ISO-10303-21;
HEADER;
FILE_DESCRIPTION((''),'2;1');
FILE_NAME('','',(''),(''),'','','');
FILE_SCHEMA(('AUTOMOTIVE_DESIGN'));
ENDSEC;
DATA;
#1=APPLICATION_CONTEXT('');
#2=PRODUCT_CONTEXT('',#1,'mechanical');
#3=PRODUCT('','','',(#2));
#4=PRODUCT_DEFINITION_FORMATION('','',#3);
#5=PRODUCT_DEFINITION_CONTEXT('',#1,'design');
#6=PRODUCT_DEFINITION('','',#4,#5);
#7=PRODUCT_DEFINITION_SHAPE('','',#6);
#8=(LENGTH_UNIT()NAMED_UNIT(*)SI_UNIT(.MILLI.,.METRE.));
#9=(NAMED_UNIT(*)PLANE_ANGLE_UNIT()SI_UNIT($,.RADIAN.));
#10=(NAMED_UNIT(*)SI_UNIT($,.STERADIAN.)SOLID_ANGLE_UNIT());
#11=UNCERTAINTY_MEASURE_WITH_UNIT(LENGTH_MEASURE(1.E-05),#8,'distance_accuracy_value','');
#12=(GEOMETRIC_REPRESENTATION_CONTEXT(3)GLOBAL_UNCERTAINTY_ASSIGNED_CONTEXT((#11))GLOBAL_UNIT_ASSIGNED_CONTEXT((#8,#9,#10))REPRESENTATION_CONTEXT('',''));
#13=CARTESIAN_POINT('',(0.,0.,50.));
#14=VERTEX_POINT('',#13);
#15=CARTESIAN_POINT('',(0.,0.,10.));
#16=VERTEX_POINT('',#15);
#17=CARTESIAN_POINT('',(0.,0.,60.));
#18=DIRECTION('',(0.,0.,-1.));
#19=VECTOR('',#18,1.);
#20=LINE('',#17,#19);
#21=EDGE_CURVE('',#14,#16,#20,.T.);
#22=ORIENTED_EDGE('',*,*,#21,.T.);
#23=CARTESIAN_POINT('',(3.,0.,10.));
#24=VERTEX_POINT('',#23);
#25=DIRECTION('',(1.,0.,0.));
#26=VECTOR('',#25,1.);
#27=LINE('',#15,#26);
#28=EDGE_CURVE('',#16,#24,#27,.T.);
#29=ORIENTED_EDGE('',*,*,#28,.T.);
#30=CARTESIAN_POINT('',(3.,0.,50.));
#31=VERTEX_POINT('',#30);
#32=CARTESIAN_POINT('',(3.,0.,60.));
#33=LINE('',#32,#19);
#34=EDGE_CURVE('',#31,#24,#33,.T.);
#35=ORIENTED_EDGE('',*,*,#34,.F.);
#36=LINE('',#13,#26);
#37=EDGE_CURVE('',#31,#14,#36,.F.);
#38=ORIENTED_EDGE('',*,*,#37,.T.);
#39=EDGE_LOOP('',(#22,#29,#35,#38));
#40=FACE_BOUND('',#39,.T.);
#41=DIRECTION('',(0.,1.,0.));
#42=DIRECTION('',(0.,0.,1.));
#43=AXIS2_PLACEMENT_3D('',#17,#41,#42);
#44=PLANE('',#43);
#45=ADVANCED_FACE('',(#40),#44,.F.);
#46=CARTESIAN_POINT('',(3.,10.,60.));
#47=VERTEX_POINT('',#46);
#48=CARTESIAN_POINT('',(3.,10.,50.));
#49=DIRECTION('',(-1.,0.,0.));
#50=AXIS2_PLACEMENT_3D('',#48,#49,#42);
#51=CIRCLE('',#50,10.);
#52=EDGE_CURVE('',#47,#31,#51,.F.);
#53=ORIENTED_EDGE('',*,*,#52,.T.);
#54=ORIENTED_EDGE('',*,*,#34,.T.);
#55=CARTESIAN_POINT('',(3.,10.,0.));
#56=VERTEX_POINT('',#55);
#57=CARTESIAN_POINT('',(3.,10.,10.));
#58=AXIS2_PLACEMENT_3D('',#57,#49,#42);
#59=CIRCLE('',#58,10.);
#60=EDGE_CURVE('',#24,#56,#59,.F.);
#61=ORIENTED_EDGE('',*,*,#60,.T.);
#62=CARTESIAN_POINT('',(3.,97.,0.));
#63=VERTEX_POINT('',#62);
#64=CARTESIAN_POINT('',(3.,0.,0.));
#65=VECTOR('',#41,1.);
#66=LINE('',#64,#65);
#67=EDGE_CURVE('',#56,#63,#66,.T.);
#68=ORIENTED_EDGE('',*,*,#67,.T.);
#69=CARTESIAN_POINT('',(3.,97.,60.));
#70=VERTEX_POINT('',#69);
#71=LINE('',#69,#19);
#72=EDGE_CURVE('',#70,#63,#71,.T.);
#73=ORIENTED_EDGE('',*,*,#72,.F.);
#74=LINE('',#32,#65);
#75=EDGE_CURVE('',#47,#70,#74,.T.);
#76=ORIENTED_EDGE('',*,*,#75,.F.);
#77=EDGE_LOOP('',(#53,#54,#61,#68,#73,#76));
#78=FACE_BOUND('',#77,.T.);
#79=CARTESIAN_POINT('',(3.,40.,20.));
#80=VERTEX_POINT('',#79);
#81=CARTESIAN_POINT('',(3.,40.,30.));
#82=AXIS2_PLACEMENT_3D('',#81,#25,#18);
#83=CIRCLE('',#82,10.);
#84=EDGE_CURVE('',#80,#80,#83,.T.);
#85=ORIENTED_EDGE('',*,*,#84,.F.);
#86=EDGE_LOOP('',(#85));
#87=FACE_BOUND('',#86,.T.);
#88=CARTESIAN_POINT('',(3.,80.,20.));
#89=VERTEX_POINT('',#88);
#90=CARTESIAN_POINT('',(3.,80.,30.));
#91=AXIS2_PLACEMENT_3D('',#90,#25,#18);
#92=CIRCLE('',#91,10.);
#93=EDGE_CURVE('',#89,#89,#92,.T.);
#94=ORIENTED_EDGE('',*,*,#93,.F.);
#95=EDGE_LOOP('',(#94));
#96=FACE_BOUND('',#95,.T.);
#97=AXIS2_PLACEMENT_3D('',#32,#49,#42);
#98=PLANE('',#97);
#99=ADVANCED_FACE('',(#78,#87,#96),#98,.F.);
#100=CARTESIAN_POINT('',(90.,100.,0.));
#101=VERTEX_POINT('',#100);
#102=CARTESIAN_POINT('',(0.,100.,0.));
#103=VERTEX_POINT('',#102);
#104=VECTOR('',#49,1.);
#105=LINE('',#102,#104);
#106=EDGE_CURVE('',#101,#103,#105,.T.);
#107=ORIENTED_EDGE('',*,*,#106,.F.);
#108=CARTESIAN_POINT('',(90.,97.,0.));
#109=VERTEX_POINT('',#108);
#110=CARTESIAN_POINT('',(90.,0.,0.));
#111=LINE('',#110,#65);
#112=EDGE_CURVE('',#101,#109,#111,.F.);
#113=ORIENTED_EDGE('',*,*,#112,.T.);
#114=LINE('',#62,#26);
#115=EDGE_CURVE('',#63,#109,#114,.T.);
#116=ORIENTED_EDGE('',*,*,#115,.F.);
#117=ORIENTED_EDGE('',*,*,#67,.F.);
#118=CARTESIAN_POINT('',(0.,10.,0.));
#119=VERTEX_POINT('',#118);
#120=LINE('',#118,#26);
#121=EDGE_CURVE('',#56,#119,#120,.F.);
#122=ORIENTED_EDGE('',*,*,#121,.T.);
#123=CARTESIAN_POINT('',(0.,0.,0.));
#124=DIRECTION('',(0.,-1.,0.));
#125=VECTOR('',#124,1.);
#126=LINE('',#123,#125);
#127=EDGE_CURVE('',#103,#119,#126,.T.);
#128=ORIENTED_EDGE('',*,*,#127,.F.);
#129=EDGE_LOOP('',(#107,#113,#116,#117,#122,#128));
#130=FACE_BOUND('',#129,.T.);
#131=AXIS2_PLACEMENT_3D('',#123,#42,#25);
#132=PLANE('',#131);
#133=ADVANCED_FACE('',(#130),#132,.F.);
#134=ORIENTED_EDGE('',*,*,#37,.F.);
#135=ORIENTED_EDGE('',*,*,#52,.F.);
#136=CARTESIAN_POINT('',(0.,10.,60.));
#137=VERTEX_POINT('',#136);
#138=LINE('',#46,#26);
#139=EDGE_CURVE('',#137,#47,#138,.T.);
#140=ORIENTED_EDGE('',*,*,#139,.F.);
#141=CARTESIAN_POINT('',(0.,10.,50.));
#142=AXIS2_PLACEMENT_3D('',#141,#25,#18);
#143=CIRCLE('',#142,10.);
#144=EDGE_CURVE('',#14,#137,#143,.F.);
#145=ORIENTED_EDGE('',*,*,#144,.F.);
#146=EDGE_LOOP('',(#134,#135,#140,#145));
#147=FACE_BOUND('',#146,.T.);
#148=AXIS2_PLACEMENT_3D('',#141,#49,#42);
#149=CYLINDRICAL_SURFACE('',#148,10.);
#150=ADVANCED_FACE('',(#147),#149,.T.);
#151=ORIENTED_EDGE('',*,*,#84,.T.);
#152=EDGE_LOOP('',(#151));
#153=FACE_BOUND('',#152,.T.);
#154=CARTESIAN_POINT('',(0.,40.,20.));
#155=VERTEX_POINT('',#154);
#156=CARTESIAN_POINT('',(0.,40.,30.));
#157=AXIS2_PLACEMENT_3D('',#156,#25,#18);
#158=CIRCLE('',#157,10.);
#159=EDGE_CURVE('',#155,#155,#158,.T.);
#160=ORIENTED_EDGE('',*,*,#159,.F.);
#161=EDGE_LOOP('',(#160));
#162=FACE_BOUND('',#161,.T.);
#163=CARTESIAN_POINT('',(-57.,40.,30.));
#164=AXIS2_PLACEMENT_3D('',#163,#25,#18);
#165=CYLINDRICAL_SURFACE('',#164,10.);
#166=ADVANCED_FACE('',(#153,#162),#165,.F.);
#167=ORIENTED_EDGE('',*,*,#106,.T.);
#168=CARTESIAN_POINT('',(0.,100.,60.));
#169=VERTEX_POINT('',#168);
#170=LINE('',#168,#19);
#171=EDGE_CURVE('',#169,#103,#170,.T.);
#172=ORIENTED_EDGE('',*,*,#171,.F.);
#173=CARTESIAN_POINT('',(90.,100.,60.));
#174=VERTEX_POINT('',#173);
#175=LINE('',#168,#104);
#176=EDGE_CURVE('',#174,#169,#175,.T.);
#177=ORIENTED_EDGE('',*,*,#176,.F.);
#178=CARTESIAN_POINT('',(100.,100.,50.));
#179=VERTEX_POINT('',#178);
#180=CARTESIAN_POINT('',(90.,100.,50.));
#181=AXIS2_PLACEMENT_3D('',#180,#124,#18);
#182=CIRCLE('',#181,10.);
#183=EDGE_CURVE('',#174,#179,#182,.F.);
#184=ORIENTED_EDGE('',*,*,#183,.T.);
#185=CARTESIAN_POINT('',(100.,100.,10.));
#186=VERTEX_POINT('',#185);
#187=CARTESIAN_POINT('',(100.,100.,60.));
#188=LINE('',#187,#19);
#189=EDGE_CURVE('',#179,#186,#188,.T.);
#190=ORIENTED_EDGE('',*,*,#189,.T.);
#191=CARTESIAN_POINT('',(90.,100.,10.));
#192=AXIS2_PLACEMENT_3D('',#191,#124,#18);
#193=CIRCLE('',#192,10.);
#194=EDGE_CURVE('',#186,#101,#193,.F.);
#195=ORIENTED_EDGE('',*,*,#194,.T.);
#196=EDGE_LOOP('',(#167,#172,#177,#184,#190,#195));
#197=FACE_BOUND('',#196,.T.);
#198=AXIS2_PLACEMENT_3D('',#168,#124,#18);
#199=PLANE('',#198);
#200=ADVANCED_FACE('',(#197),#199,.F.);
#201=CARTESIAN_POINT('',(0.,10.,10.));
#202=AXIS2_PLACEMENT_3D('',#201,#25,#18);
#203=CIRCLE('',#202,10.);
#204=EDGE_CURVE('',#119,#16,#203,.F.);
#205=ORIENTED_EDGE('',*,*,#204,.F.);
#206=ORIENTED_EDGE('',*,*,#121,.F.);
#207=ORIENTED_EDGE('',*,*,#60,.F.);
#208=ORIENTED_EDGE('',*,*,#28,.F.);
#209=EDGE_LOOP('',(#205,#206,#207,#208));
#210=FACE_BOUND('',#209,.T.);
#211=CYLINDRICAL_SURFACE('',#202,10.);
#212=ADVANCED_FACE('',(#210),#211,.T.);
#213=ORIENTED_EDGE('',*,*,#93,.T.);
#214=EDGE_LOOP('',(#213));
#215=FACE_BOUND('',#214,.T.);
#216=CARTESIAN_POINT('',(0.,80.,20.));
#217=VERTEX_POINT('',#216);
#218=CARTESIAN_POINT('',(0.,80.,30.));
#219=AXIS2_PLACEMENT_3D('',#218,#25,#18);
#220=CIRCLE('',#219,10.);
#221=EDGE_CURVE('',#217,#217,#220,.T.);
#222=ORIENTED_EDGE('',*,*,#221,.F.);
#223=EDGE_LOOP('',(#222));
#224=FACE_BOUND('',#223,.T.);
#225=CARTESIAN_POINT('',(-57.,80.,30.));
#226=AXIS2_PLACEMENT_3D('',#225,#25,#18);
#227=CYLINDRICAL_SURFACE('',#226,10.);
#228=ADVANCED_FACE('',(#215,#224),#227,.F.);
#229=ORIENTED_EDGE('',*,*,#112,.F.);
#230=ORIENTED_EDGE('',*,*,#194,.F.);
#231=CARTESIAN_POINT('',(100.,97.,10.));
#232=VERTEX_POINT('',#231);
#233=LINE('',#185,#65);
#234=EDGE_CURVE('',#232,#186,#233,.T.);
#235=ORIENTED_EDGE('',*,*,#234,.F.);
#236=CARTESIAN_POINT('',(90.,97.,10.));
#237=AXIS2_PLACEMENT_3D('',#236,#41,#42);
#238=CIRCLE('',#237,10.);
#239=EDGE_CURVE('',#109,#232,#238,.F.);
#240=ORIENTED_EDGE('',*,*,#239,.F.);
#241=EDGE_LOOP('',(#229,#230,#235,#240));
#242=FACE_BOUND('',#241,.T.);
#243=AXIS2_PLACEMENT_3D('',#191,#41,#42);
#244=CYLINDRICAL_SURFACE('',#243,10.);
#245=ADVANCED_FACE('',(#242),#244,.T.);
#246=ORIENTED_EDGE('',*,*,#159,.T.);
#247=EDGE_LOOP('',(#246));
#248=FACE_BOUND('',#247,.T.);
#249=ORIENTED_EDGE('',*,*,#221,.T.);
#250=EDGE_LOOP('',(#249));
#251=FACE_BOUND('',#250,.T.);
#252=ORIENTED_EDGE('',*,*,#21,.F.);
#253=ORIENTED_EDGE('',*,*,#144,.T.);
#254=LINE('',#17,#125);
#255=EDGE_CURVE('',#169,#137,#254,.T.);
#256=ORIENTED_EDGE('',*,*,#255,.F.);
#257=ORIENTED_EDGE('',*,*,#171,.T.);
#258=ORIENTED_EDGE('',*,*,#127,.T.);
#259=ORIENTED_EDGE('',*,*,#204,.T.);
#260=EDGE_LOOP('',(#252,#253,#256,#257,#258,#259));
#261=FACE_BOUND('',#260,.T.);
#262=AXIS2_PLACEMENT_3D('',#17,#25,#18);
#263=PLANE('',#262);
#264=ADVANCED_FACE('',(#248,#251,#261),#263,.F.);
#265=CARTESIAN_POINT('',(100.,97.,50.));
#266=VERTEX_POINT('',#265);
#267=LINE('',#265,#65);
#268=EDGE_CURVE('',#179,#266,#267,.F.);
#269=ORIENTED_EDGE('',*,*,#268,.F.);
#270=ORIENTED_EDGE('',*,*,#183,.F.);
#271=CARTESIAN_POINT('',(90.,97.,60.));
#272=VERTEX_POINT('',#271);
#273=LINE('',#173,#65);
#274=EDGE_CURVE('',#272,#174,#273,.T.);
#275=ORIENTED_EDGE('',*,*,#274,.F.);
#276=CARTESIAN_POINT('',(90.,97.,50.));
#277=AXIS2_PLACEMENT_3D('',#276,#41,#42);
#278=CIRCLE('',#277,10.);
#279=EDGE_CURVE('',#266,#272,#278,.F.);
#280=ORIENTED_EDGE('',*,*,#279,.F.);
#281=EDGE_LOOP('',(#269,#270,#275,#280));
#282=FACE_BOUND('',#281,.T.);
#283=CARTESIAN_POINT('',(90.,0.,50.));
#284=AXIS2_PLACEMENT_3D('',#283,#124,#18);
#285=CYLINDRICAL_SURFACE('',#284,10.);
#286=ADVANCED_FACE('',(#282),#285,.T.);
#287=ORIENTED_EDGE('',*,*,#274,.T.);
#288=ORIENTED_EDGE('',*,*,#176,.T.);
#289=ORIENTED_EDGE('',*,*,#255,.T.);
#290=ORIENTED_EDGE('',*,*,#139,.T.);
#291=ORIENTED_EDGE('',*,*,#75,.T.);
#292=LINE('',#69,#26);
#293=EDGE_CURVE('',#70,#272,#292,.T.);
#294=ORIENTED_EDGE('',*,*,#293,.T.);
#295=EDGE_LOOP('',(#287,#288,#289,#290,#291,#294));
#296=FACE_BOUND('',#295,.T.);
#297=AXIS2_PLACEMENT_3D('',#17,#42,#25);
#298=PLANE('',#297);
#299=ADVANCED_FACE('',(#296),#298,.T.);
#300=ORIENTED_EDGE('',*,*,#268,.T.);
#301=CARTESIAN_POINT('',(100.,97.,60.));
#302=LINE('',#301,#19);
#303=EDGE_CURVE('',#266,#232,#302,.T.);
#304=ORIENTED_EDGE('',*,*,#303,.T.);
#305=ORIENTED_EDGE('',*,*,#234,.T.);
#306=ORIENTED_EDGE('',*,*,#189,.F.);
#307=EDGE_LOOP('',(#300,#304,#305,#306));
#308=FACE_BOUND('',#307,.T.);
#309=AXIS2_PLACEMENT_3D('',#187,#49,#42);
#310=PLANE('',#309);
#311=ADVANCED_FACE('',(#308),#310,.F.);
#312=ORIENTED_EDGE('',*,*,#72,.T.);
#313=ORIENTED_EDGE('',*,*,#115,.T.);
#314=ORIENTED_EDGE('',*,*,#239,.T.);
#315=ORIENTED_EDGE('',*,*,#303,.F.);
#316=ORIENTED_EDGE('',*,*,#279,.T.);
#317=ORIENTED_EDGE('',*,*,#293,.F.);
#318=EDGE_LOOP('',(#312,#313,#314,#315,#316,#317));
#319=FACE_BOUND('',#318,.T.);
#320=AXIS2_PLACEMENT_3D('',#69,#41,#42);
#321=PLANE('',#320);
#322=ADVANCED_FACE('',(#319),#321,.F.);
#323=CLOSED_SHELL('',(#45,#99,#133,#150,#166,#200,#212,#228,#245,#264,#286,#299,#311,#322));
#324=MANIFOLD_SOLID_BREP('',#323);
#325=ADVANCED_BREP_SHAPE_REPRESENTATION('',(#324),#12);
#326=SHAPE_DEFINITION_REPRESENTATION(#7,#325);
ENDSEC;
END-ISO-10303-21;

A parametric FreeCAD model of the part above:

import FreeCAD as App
import Part
import Sketcher
from FreeCAD import Vector


def edges_at(feature, points):
    """Names of the edges that pass closest to the given points."""
    edges = feature.Shape.Edges
    near = lambda p: min(range(len(edges)), key=lambda i: edges[i].distToShape(Part.Vertex(*p))[0])
    return sorted({f"Edge{near(p) + 1}" for p in points})

doc = App.newDocument("Part")
params = doc.addObject("Spreadsheet::Sheet", "Params")
for row, (alias, value) in enumerate([
    ("sketch1_width", "3 mm"),
    ("sketch1_width2", "97 mm"),
    ("pad1_length", "60 mm"),
    ("fillet_radius", "10 mm"),
    ("fillet2_radius", "10 mm"),
    ("sketch2_diameter", "20 mm"),
    ("pocket1_length", "60 mm"),
], start=1):
    params.set(f"A{row}", alias)
    params.set(f"B{row}", "=" + value)
    params.setAlias(f"B{row}", alias)

body = doc.addObject("PartDesign::Body", "Body")

# Sketch on XY plane
sketch1 = body.newObject("Sketcher::SketchObject", "Sketch")
sketch1.AttachmentSupport = (doc.getObject("XY_Plane"), [""])
sketch1.MapMode = "FlatFace"
sketch1.addGeometry(Part.LineSegment(Vector(0, 100, 0), Vector(0, 0, 0)), False)
sketch1.addGeometry(Part.LineSegment(Vector(0, 0, 0), Vector(3, 0, 0)), False)
sketch1.addGeometry(Part.LineSegment(Vector(3, 0, 0), Vector(3, 97, 0)), False)
sketch1.addGeometry(Part.LineSegment(Vector(3, 97, 0), Vector(100, 97, 0)), False)
sketch1.addGeometry(Part.LineSegment(Vector(100, 97, 0), Vector(100, 100, 0)), False)
sketch1.addGeometry(Part.LineSegment(Vector(100, 100, 0), Vector(0, 100, 0)), False)
sketch1.addConstraint(Sketcher.Constraint("Coincident", 0, 2, 1, 1))
sketch1.addConstraint(Sketcher.Constraint("Coincident", 1, 2, 2, 1))
sketch1.addConstraint(Sketcher.Constraint("Coincident", 2, 2, 3, 1))
sketch1.addConstraint(Sketcher.Constraint("Coincident", 3, 2, 4, 1))
sketch1.addConstraint(Sketcher.Constraint("Coincident", 4, 2, 5, 1))
sketch1.addConstraint(Sketcher.Constraint("Coincident", 5, 2, 0, 1))
sketch1.addConstraint(Sketcher.Constraint("Vertical", 0))
sketch1.addConstraint(Sketcher.Constraint("Horizontal", 1))
sketch1.addConstraint(Sketcher.Constraint("Vertical", 2))
sketch1.addConstraint(Sketcher.Constraint("Horizontal", 3))
sketch1.addConstraint(Sketcher.Constraint("Vertical", 4))
sketch1.addConstraint(Sketcher.Constraint("Horizontal", 5))
sketch1.addConstraint(Sketcher.Constraint("Coincident", 0, 2, -1, 1))
sketch1.addConstraint(Sketcher.Constraint("Equal", 5, 0))
sketch1.addConstraint(Sketcher.Constraint("Equal", 3, 2))
sketch1.addConstraint(Sketcher.Constraint("DistanceX", 1, 1, 1, 2, 3.0))
sketch1.addConstraint(Sketcher.Constraint("DistanceX", 3, 1, 3, 2, 97.0))
sketch1.setExpression("Constraints[15]", "Params.sketch1_width")
sketch1.setExpression("Constraints[16]", "Params.sketch1_width2")
pad1 = body.newObject("PartDesign::Pad", "Pad")
pad1.Profile = sketch1
pad1.setExpression("Length", "Params.pad1_length")
doc.recompute()

fillet = body.newObject("PartDesign::Fillet", "Fillet")
fillet.Base = (pad1, edges_at(pad1, [(100, 98.5, 60), (100, 98.5, 0)]))
fillet.setExpression("Radius", "Params.fillet_radius")
doc.recompute()

fillet2 = body.newObject("PartDesign::Fillet", "Fillet001")
fillet2.Base = (fillet, edges_at(fillet, [(1.5, 0, 60), (1.5, 0, 0)]))
fillet2.setExpression("Radius", "Params.fillet2_radius")

# Sketch on YZ plane
sketch2 = body.newObject("Sketcher::SketchObject", "Sketch001")
sketch2.AttachmentSupport = (doc.getObject("YZ_Plane"), [""])
sketch2.MapMode = "FlatFace"
sketch2.AttachmentOffset = App.Placement(Vector(0, 0, 3), App.Rotation())
sketch2.addGeometry(Part.Circle(Vector(40, 30, 0), Vector(0, 0, 1), 10), False)
sketch2.addGeometry(Part.Circle(Vector(80, 30, 0), Vector(0, 0, 1), 10), False)
sketch2.addConstraint(Sketcher.Constraint("Equal", 0, 1))
sketch2.addConstraint(Sketcher.Constraint("Horizontal", 0, 3, 1, 3))
sketch2.addConstraint(Sketcher.Constraint("Diameter", 0, 20.0))
sketch2.addConstraint(Sketcher.Constraint("DistanceX", -1, 1, 0, 3, 40.0))
sketch2.addConstraint(Sketcher.Constraint("DistanceY", -1, 1, 0, 3, 30.0))
sketch2.addConstraint(Sketcher.Constraint("DistanceX", -1, 1, 1, 3, 80.0))
sketch2.setExpression("Constraints[2]", "Params.sketch2_diameter")
pocket1 = body.newObject("PartDesign::Pocket", "Pocket")
pocket1.Profile = sketch2
pocket1.setExpression("Length", "Params.pocket1_length")

doc.recompute()
